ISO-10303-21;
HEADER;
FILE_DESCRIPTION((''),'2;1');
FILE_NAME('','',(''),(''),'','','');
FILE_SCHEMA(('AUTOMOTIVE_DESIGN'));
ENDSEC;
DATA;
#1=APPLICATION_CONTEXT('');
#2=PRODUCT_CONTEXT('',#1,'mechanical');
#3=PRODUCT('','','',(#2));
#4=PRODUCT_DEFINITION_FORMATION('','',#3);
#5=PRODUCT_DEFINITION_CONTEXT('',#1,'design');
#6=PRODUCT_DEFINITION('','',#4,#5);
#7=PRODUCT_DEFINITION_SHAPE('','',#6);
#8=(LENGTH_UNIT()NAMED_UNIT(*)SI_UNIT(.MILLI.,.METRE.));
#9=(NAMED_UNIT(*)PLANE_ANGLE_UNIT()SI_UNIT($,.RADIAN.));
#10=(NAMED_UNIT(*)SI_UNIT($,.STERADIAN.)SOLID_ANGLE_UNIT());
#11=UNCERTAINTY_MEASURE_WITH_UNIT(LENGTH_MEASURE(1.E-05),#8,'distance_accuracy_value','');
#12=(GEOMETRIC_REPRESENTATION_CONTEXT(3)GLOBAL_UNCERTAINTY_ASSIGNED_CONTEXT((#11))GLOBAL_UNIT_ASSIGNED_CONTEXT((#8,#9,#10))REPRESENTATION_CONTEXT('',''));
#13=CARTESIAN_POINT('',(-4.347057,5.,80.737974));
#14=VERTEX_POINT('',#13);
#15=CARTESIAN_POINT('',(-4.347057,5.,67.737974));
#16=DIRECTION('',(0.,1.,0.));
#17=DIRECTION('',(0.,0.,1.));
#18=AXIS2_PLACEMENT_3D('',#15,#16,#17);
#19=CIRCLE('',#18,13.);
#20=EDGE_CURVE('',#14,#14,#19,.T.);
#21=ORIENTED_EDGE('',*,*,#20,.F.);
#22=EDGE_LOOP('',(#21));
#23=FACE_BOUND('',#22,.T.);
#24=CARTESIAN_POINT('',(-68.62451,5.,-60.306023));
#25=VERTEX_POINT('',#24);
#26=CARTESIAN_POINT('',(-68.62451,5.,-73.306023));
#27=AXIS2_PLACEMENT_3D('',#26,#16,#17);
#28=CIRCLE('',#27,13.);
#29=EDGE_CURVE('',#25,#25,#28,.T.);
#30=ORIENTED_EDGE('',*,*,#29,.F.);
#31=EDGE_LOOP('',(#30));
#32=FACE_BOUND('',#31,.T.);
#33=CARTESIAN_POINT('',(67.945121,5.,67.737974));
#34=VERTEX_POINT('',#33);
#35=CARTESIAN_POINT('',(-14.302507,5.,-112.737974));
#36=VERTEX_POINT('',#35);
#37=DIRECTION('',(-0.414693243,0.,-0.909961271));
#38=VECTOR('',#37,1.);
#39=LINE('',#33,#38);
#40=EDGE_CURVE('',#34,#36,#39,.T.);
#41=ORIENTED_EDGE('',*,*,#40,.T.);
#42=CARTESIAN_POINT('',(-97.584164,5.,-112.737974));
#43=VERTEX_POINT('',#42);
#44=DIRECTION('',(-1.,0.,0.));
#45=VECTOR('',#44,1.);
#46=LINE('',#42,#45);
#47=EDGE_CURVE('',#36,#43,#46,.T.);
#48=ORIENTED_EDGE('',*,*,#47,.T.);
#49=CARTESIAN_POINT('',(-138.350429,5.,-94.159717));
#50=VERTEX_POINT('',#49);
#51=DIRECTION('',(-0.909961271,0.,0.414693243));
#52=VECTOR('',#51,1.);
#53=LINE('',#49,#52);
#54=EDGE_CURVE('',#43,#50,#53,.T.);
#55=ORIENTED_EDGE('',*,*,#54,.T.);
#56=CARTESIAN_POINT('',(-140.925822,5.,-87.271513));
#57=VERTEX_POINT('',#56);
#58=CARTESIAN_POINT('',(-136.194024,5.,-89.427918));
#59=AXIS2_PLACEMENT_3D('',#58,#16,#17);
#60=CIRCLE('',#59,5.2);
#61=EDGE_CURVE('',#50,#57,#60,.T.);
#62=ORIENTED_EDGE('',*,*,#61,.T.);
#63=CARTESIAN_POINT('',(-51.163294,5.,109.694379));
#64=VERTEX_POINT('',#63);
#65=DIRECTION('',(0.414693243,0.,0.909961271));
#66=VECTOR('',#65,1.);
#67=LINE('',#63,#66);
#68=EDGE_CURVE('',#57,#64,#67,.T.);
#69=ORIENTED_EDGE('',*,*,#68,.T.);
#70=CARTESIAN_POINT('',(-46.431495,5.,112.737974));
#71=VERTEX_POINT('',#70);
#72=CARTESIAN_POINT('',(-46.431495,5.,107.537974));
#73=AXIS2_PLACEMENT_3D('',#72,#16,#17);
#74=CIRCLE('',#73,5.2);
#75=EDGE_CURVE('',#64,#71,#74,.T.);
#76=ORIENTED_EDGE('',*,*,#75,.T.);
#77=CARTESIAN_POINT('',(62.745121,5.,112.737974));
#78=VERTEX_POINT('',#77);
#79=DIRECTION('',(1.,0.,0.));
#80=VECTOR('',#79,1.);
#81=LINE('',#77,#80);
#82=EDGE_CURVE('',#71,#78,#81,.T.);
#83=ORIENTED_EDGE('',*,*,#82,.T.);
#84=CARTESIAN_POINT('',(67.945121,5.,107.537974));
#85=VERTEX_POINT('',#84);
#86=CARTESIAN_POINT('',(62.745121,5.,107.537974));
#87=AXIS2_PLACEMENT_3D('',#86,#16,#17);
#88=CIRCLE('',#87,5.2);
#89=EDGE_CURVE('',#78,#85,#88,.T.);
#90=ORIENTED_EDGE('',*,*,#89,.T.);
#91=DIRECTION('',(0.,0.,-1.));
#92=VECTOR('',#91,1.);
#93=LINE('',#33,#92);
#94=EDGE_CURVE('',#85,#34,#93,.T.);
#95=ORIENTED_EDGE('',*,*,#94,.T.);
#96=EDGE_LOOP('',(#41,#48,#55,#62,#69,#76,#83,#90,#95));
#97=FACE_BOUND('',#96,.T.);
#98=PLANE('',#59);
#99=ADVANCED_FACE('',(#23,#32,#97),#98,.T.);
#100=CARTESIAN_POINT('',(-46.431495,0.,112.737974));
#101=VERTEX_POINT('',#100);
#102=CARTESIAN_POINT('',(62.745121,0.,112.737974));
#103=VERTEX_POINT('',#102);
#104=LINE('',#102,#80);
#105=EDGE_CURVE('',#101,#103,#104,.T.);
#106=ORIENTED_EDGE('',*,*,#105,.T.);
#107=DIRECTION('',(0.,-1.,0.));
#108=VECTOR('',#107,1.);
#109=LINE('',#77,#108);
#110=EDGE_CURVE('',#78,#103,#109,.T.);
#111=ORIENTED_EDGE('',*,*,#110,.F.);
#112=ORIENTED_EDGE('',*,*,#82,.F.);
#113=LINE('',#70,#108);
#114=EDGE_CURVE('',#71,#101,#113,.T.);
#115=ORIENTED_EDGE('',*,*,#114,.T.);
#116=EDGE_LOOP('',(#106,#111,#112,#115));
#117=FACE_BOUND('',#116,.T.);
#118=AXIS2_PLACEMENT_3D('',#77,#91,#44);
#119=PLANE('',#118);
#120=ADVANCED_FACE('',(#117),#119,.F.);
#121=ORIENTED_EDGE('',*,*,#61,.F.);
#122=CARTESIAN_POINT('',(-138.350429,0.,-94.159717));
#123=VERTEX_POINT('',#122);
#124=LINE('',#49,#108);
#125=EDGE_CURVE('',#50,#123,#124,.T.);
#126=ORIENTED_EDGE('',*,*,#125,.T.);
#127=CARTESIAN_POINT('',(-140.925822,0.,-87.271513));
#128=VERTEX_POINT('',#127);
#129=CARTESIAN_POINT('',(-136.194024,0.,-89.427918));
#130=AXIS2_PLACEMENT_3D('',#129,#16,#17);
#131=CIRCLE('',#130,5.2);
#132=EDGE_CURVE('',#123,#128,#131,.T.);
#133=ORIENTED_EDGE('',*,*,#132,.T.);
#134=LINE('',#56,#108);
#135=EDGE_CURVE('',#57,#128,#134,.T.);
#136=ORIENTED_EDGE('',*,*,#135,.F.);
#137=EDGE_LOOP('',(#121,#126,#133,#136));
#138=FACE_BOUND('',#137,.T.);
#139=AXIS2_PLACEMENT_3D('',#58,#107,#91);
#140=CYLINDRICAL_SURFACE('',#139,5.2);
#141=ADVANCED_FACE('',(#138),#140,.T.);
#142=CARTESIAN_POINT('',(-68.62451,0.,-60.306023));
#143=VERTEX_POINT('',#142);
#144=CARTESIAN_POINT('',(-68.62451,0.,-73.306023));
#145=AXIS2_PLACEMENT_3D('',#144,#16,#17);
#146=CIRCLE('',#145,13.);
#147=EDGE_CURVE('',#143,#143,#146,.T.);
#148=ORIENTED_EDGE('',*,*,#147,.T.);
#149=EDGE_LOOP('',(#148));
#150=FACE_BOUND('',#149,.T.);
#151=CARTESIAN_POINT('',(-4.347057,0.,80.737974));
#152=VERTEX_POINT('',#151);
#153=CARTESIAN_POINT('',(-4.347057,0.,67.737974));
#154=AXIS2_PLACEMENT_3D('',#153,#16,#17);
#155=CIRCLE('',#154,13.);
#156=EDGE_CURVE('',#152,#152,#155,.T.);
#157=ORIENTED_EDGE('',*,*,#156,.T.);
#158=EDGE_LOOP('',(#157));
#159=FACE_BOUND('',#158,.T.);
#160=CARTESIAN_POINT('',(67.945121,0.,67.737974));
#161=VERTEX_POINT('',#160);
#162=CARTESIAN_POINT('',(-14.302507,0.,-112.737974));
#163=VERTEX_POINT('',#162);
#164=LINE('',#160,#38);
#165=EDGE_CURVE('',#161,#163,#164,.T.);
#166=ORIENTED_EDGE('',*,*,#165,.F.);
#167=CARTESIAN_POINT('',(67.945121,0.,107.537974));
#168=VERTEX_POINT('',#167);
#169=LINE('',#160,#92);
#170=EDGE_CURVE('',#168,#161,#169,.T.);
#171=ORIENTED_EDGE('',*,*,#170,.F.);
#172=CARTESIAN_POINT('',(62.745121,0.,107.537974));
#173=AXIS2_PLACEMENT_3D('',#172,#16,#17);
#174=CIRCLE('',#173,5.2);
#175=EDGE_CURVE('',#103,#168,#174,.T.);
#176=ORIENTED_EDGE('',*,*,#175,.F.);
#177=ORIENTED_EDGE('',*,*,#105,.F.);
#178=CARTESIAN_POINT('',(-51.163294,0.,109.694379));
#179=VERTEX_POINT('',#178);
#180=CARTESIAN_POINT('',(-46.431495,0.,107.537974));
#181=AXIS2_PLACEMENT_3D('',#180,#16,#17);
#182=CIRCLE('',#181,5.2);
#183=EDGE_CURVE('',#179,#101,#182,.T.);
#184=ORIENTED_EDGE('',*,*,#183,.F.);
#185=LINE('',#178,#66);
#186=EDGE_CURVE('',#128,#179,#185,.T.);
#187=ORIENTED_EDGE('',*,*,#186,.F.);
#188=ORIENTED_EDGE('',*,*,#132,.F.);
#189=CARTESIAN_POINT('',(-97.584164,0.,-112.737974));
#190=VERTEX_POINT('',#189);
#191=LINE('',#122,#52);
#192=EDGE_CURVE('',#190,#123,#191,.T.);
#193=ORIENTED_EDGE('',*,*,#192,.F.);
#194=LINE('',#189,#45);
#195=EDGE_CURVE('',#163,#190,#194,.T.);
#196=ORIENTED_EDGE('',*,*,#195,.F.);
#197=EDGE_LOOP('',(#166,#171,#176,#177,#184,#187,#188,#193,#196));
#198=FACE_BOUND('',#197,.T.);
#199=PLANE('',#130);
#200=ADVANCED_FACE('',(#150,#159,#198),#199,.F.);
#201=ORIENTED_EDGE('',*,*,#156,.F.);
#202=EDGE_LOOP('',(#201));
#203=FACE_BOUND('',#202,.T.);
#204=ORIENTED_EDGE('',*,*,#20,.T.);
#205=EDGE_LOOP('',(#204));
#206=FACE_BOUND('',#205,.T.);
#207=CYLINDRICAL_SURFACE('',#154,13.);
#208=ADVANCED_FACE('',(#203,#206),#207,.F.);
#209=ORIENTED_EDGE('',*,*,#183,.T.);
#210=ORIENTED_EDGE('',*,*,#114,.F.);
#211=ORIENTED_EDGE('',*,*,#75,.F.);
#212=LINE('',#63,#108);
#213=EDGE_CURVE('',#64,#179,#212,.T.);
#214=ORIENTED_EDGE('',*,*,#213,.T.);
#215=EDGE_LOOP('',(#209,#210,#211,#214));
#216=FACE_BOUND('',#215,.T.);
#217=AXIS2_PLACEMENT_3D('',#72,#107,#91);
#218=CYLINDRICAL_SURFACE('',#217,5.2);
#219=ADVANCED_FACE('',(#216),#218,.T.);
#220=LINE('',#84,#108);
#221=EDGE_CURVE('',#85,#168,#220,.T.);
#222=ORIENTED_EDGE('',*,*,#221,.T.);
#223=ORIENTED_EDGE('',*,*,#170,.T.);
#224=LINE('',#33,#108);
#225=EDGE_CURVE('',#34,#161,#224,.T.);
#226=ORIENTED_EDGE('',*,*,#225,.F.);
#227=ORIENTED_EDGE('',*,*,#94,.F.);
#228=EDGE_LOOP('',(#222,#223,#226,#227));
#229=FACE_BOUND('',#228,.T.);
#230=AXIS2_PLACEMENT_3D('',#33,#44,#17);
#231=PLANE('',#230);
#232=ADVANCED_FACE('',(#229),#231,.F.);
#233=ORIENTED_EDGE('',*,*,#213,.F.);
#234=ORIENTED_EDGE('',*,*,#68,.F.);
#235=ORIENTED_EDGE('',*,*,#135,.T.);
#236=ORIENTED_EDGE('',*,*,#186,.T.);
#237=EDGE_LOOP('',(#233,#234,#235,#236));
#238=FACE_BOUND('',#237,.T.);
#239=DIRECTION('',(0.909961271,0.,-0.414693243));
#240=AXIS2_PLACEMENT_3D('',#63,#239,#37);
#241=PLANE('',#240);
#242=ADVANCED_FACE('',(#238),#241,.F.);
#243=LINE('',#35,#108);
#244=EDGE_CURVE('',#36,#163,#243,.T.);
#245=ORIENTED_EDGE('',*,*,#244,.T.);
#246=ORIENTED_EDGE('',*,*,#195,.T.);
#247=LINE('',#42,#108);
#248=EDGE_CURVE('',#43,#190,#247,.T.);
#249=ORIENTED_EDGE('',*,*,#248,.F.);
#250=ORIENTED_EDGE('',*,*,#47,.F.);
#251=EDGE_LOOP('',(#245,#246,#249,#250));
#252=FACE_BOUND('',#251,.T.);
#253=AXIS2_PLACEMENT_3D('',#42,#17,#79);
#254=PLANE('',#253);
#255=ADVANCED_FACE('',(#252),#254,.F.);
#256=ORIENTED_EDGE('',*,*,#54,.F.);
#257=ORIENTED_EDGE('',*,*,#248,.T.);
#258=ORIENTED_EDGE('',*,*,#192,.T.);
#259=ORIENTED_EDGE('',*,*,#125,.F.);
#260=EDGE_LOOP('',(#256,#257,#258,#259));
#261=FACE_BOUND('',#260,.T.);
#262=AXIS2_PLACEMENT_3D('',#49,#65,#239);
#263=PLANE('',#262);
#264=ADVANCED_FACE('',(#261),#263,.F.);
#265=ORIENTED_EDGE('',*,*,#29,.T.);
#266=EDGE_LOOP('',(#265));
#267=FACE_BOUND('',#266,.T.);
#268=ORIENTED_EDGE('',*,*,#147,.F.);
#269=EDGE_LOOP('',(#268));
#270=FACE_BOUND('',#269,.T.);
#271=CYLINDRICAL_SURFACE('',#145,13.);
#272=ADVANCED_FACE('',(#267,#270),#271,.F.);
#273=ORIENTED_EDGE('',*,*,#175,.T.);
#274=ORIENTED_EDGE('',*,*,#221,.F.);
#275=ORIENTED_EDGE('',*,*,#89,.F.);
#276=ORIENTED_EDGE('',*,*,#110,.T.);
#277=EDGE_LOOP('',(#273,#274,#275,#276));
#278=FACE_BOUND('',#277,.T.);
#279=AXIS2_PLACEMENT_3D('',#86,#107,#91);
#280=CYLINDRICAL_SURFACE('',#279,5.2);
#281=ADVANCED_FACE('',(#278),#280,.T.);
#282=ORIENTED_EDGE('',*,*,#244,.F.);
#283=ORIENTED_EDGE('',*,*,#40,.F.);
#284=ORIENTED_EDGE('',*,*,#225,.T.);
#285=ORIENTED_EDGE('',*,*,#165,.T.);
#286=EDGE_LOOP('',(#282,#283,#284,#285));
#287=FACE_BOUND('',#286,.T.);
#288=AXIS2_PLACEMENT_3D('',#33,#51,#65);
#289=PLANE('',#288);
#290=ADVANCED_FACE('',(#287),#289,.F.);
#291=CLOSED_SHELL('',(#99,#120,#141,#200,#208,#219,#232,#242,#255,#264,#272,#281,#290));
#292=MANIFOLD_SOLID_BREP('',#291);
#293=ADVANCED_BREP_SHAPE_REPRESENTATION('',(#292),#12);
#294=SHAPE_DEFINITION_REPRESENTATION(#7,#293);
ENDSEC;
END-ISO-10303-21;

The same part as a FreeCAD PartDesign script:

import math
import FreeCAD as App
import Part
import Sketcher
from FreeCAD import Vector
Q = App.Units.Quantity

doc = App.newDocument("Part")
body = doc.addObject("PartDesign::Body", "Body")

# Sketch on XZ plane
sketch1 = doc.addObject("Sketcher::SketchObject", "Sketch")
body.addObject(sketch1)
sketch1.AttachmentSupport = (doc.XZ_Plane, [""])
sketch1.MapMode = "FlatFace"
sketch1.addGeometry([
    Part.LineSegment(Vector(68, 108, 0), Vector(68, 68, 0)),  # 0
    Part.LineSegment(Vector(68, 68, 0), Vector(-14, -113, 0)),  # 1
    Part.LineSegment(Vector(-14, -113, 0), Vector(-98, -113, 0)),  # 2
    Part.LineSegment(Vector(-98, -113, 0), Vector(-138, -94, 0)),  # 3
    Part.ArcOfCircle(Part.Circle(Vector(-136, -89, 0), Vector(0, 0, 1), 5), math.radians(156), math.radians(245)),  # 4
    Part.LineSegment(Vector(-141, -87, 0), Vector(-51, 110, 0)),  # 5
    Part.ArcOfCircle(Part.Circle(Vector(-46, 108, 0), Vector(0, 0, 1), 5), math.radians(90), math.radians(155)),  # 6
    Part.LineSegment(Vector(-46, 113, 0), Vector(63, 113, 0)),  # 7
    Part.ArcOfCircle(Part.Circle(Vector(63, 108, 0), Vector(0, 0, 1), 5), math.radians(0), math.radians(90)),  # 8
], False)
sketch1.addConstraint([
    Sketcher.Constraint("Coincident", 0, 2, 1, 1),
    Sketcher.Constraint("Coincident", 1, 2, 2, 1),
    Sketcher.Constraint("Coincident", 2, 2, 3, 1),
    Sketcher.Constraint("Tangent", 3, 2, 4, 2),
    Sketcher.Constraint("Tangent", 4, 1, 5, 1),
    Sketcher.Constraint("Tangent", 5, 2, 6, 2),
    Sketcher.Constraint("Tangent", 6, 1, 7, 1),
    Sketcher.Constraint("Tangent", 7, 2, 8, 2),
    Sketcher.Constraint("Tangent", 8, 1, 0, 1),
    Sketcher.Constraint("Vertical", 0),
    Sketcher.Constraint("Horizontal", 2),
    Sketcher.Constraint("Horizontal", 7),
    Sketcher.Constraint("Equal", 4, 6),
    Sketcher.Constraint("Equal", 6, 8),
    Sketcher.Constraint("Perpendicular", 1, 3),
    Sketcher.Constraint("Perpendicular", 3, 5),
    Sketcher.Constraint("Radius", 4, 5.2),
    Sketcher.Constraint("DistanceY", 0, 2, 0, 1, 39.8),
    Sketcher.Constraint("Angle", 1, Q("-114.5 deg")),
    Sketcher.Constraint("Distance", 3, 44.8),
    Sketcher.Constraint("Distance", 1, 198.333659),
    Sketcher.Constraint("DistanceX", 2, 2, 2, 1, 83.281657),
    Sketcher.Constraint("DistanceY", 4, 3, -1, 1, 89.427918),
    Sketcher.Constraint("DistanceX", -1, 1, 8, 3, 62.745121),
])
pad1 = doc.addObject("PartDesign::Pad", "Pad")
body.addObject(pad1)
pad1.Profile = sketch1
pad1.Length = 5
pad1.Reversed = True

# Sketch on XZ plane
sketch2 = doc.addObject("Sketcher::SketchObject", "Sketch001")
body.addObject(sketch2)
sketch2.AttachmentSupport = (doc.XZ_Plane, [""])
sketch2.MapMode = "FlatFace"
sketch2.AttachmentOffset = App.Placement(Vector(0, 0, -5), App.Rotation())
sketch2.addGeometry([
    Part.Circle(Vector(-4, 68, 0), Vector(0, 0, 1), 13),
    Part.Circle(Vector(-69, -73, 0), Vector(0, 0, 1), 13),
], False)
sketch2.addConstraint([
    Sketcher.Constraint("Equal", 0, 1),
    Sketcher.Constraint("Diameter", 0, 26.0),
    Sketcher.Constraint("DistanceX", 1, 3, -1, 1, 68.62451),
    Sketcher.Constraint("DistanceX", 0, 3, -1, 1, 4.347057),
    Sketcher.Constraint("DistanceY", -1, 1, 0, 3, 67.737974),
    Sketcher.Constraint("DistanceY", 1, 3, -1, 1, 73.306023),
])
pocket1 = doc.addObject("PartDesign::Pocket", "Pocket")
body.addObject(pocket1)
pocket1.Profile = sketch2
pocket1.Length = 5
pocket1.Reversed = True

doc.recompute()
